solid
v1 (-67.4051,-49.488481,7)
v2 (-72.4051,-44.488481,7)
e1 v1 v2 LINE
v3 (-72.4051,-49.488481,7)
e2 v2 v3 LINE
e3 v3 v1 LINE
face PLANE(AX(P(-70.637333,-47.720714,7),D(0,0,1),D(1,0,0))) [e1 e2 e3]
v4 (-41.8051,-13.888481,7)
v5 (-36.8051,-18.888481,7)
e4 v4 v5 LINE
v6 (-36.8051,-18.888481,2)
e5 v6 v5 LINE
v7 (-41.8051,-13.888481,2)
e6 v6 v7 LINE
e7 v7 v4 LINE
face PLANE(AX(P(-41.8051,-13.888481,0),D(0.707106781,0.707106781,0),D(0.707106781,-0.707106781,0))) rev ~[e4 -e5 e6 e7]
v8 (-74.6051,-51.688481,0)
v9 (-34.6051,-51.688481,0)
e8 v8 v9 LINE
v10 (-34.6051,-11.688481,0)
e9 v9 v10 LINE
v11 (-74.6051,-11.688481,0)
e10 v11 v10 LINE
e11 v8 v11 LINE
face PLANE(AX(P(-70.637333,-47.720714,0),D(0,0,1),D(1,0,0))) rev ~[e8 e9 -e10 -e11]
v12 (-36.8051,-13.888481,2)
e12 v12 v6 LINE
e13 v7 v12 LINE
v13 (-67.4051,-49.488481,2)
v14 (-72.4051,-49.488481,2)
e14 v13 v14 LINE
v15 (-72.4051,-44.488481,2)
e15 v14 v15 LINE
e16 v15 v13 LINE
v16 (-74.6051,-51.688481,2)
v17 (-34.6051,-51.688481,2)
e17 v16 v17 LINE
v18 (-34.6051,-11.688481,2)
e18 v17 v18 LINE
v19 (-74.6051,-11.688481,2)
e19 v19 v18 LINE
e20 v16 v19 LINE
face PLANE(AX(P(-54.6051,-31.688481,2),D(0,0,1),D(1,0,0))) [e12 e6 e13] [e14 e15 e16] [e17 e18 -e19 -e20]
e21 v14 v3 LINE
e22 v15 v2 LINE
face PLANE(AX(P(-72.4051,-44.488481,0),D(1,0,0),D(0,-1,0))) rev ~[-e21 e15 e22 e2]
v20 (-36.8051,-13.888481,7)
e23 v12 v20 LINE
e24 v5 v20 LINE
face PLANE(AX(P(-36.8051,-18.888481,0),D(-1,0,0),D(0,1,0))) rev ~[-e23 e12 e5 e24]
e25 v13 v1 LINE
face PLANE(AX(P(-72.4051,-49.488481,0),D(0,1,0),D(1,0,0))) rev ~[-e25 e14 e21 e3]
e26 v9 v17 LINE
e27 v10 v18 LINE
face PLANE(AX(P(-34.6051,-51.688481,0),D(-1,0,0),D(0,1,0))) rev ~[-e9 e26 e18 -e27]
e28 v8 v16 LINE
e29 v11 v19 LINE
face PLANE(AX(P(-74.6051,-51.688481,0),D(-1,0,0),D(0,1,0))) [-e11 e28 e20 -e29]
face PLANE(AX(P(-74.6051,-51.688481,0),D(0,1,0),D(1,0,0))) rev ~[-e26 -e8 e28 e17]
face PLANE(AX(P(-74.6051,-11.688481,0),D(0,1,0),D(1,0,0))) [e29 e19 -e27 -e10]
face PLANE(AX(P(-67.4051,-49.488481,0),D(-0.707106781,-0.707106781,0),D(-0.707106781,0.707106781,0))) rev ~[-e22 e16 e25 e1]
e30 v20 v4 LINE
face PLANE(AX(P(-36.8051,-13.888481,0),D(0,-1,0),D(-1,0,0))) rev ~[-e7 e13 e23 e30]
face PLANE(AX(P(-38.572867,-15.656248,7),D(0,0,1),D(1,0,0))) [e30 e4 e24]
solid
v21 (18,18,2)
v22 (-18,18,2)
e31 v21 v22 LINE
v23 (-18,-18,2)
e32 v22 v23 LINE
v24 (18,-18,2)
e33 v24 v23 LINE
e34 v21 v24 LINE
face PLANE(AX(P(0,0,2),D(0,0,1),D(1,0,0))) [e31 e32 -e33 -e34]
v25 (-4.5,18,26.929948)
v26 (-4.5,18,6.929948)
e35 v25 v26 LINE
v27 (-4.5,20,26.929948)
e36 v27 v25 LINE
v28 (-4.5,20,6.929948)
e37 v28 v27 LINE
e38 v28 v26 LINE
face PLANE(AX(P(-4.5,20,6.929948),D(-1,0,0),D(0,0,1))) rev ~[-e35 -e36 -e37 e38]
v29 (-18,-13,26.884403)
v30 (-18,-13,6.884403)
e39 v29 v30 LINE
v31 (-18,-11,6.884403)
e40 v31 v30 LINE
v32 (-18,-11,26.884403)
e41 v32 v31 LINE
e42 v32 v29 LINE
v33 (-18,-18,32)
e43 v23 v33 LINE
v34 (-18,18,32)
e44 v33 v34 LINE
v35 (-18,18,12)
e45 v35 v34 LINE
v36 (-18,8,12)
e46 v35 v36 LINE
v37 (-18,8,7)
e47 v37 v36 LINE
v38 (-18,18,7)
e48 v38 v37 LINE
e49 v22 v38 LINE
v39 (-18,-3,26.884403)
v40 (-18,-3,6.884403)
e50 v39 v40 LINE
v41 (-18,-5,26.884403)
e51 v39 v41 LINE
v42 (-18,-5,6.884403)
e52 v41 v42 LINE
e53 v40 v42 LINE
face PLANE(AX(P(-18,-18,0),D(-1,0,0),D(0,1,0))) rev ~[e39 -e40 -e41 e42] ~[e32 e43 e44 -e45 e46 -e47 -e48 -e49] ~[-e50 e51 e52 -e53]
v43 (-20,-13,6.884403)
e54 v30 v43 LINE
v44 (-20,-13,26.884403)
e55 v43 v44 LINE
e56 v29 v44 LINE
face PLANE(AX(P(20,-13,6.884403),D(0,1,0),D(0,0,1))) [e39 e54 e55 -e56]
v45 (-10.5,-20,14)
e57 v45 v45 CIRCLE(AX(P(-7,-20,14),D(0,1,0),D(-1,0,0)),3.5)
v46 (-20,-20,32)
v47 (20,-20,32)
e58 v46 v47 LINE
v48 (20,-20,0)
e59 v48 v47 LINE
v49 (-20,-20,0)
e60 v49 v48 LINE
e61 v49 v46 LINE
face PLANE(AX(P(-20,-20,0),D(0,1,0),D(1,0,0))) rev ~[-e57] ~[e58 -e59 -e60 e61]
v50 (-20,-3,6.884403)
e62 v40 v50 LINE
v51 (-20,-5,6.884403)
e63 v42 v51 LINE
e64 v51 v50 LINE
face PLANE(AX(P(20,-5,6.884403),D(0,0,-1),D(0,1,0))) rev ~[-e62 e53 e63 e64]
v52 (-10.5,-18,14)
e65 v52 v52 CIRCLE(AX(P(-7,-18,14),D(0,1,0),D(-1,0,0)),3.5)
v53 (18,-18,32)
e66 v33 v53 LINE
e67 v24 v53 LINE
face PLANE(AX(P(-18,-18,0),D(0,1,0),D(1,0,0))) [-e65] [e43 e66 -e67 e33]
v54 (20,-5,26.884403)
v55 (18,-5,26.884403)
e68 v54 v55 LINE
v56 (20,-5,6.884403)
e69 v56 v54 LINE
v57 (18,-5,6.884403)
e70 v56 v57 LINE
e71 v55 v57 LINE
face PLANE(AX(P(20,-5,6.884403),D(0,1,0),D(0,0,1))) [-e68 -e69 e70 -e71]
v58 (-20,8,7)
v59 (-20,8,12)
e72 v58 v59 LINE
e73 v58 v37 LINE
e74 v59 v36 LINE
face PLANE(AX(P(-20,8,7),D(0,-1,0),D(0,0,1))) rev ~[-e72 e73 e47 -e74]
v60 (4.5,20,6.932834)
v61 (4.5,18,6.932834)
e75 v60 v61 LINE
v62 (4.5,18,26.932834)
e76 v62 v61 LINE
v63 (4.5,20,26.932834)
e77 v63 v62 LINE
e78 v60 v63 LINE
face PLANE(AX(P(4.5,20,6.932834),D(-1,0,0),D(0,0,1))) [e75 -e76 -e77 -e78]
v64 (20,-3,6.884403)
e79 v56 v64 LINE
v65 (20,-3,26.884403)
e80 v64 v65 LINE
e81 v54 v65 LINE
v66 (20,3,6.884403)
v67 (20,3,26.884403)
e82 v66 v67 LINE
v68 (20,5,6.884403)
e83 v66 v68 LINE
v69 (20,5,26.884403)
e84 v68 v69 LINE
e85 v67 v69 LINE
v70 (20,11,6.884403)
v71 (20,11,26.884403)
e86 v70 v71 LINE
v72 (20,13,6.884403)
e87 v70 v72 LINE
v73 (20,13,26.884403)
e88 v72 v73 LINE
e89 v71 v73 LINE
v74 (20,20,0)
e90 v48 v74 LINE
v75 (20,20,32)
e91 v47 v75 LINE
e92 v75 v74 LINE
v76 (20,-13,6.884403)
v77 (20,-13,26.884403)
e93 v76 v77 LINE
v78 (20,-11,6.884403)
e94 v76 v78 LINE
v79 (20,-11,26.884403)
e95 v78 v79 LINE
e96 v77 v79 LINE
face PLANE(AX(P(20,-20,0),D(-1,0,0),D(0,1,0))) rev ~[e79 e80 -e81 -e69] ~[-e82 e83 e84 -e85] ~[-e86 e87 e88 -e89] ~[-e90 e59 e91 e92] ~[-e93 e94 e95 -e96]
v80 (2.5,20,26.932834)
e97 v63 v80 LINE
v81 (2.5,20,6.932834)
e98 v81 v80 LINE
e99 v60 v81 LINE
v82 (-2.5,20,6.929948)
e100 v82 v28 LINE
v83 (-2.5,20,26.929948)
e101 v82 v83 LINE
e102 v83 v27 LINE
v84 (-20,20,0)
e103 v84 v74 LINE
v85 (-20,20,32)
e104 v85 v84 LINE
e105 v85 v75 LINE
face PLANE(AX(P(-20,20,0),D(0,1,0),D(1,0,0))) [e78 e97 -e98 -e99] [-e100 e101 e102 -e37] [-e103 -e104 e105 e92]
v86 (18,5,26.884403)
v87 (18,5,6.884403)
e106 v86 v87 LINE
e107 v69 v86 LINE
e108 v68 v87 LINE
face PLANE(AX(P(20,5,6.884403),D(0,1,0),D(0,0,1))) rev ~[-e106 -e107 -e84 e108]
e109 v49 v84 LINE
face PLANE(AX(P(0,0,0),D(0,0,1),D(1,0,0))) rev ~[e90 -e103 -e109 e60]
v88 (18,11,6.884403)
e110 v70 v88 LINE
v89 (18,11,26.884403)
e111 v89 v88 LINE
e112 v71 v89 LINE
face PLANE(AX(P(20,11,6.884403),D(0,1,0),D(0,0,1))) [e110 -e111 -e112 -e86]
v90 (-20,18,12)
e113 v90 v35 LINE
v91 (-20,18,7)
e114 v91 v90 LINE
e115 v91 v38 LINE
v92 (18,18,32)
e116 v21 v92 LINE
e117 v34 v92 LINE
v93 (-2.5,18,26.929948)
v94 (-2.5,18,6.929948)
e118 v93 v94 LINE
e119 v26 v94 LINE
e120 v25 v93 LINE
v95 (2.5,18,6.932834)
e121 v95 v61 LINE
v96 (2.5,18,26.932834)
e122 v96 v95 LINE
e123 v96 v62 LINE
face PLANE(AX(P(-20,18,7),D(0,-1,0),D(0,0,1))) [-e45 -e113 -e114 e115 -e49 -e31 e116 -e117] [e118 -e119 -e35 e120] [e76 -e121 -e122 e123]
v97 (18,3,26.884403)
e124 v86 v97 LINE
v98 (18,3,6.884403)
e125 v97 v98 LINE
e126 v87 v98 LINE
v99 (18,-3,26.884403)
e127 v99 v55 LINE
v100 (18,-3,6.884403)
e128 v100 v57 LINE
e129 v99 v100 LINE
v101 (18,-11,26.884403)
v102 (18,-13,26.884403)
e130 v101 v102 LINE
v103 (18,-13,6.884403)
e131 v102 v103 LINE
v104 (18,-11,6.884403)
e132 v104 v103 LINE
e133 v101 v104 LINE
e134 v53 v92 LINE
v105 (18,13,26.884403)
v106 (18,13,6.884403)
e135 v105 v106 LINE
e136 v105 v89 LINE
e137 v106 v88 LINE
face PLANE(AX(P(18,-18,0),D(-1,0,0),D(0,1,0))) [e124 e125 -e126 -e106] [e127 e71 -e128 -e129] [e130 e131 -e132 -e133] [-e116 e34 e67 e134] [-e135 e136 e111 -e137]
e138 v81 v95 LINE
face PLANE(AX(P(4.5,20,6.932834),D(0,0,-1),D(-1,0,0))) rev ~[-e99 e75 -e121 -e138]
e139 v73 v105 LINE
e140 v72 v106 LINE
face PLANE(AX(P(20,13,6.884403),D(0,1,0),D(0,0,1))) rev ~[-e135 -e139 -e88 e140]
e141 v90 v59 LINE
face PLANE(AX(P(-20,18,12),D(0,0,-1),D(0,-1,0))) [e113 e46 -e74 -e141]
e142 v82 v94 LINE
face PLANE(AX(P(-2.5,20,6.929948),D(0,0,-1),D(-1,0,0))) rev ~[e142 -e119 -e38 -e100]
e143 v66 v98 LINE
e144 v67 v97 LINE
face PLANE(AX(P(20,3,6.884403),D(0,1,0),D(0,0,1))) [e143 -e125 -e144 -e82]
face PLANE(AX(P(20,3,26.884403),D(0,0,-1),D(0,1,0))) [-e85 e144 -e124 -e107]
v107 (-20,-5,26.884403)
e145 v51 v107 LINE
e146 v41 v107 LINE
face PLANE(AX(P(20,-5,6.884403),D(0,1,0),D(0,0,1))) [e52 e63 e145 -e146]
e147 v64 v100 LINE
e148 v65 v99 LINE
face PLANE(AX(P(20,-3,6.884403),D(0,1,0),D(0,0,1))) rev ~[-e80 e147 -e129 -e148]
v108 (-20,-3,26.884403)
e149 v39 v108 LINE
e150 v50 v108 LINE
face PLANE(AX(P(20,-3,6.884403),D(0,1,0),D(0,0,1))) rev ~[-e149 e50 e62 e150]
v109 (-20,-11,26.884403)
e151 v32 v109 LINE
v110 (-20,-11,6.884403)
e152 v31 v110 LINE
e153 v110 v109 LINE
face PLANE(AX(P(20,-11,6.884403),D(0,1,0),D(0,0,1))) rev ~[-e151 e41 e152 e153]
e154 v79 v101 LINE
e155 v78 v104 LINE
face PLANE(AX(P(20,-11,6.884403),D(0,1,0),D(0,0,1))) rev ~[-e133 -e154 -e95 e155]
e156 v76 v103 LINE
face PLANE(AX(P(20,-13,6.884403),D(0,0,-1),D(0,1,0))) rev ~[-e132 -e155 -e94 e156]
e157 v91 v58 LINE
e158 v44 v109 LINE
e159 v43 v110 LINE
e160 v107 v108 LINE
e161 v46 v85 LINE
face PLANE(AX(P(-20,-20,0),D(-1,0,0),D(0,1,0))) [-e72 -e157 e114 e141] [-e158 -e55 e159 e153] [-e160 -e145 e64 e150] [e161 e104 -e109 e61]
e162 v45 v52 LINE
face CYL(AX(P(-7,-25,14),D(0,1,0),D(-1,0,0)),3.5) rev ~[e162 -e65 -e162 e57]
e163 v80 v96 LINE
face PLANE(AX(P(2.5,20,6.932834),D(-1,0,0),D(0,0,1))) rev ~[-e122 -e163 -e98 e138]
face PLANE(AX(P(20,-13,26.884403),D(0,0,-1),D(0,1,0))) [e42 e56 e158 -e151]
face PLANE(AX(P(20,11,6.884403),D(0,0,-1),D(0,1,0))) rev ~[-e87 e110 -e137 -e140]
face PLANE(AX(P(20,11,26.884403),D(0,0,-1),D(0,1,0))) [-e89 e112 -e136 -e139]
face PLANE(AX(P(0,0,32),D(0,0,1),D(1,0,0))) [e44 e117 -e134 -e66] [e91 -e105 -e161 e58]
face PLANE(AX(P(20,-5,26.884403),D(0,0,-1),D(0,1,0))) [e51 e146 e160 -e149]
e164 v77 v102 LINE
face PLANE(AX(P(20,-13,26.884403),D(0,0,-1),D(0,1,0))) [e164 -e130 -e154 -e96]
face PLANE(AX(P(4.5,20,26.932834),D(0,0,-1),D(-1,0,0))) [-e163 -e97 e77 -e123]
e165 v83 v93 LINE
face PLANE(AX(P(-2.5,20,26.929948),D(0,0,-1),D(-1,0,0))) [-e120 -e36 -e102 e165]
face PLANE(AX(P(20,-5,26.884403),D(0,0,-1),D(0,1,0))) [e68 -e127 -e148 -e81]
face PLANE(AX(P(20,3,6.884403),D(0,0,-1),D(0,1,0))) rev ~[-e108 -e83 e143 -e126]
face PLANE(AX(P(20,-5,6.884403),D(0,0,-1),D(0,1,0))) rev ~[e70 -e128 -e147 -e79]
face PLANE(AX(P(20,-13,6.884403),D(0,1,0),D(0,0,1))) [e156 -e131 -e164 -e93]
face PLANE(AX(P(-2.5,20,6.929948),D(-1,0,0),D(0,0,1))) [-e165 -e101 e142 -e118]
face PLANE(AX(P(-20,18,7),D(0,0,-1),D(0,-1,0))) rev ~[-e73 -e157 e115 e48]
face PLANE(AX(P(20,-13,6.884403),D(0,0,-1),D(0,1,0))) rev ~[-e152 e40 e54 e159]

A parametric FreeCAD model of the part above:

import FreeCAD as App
import Part
import Sketcher
Q = App.Units.Quantity


def add_polygon(sketch, points):
    """Adds a closed chain of lines whose ends are joined by coincident constraints."""
    first, n = sketch.GeometryCount, len(points)
    for a, b in zip(points, points[1:] + points[:1]):
        sketch.addGeometry(Part.LineSegment(App.Vector(*a, 0), App.Vector(*b, 0)), False)
    for i in range(n):
        sketch.addConstraint(Sketcher.Constraint("Coincident", first + i, 2, first + (i + 1) % n, 1))

doc = App.newDocument("Part")
body = doc.addObject("PartDesign::Body", "Body")

sketch1 = doc.addObject("Sketcher::SketchObject", "Sketch")
body.addObject(sketch1)
sketch1.AttachmentSupport = (doc.XY_Plane, [""])
sketch1.MapMode = "FlatFace"
add_polygon(sketch1, [(-20, 20), (-20, -20), (20, -20), (20, 20)])
sketch1.addConstraint([
    Sketcher.Constraint("Vertical", 0),
    Sketcher.Constraint("Horizontal", 1),
    Sketcher.Constraint("Vertical", 2),
    Sketcher.Constraint("Horizontal", 3),
    Sketcher.Constraint("Symmetric", 0, 2, 2, 2, -1, 1),
    Sketcher.Constraint("Equal", 3, 0),
    Sketcher.Constraint("DistanceX", 1, 1, 1, 2, Q("40 mm")),
])
pad1 = doc.addObject("PartDesign::Pad", "Pad")
body.addObject(pad1)
pad1.Profile = sketch1
pad1.Length = 2

sketch2 = doc.addObject("Sketcher::SketchObject", "Sketch001")
body.addObject(sketch2)
sketch2.AttachmentSupport = (doc.XY_Plane, [""])
sketch2.MapMode = "FlatFace"
add_polygon(sketch2, [(-20, 20), (-20, -20), (20, -20), (20, 20)])
add_polygon(sketch2, [(18, -18), (-18, -18), (-18, 18), (18, 18)])
sketch2.addConstraint([
    Sketcher.Constraint("Vertical", 0),
    Sketcher.Constraint("Horizontal", 1),
    Sketcher.Constraint("Vertical", 2),
    Sketcher.Constraint("Horizontal", 3),
    Sketcher.Constraint("Horizontal", 4),
    Sketcher.Constraint("Vertical", 5),
    Sketcher.Constraint("Horizontal", 6),
    Sketcher.Constraint("Vertical", 7),
    Sketcher.Constraint("Symmetric", 0, 2, 2, 2, -1, 1),
    Sketcher.Constraint("Symmetric", 4, 2, 6, 2, -1, 1),
    Sketcher.Constraint("Equal", 3, 0),
    Sketcher.Constraint("Equal", 6, 5),
    Sketcher.Constraint("DistanceX", 1, 1, 1, 2, Q("40 mm")),
    Sketcher.Constraint("DistanceX", 4, 2, 4, 1, Q("36 mm")),
])
pad2 = doc.addObject("PartDesign::Pad", "Pad001")
body.addObject(pad2)
pad2.Profile = sketch2
pad2.Length = 32

sketch3 = doc.addObject("Sketcher::SketchObject", "Sketch002")
body.addObject(sketch3)
sketch3.AttachmentSupport = (doc.YZ_Plane, [""])
sketch3.MapMode = "FlatFace"
sketch3.AttachmentOffset = App.Placement(App.Vector(0, 0, -20), App.Rotation())
add_polygon(sketch3, [(18, 12), (18, 7), (8, 7), (8, 12)])
sketch3.addConstraint([
    Sketcher.Constraint("Vertical", 0),
    Sketcher.Constraint("Horizontal", 1),
    Sketcher.Constraint("Vertical", 2),
    Sketcher.Constraint("Horizontal", 3),
    Sketcher.Constraint("DistanceX", 1, 2, 1, 1, Q("10 mm")),
    Sketcher.Constraint("DistanceY", 0, 2, 0, 1, Q("5 mm")),
    Sketcher.Constraint("DistanceX", -1, 1, 0, 2, Q("18 mm")),
    Sketcher.Constraint("DistanceY", -1, 1, 0, 2, Q("7 mm")),
])
pocket1 = doc.addObject("PartDesign::Pocket", "Pocket")
body.addObject(pocket1)
pocket1.Profile = sketch3
pocket1.Length = 2
pocket1.Reversed = True

sketch4 = doc.addObject("Sketcher::SketchObject", "Sketch003")
body.addObject(sketch4)
sketch4.AttachmentSupport = (doc.XZ_Plane, [""])
sketch4.MapMode = "FlatFace"
sketch4.AttachmentOffset = App.Placement(App.Vector(0, 0, 20), App.Rotation())
sketch4.addGeometry(Part.Circle(App.Vector(-7, 14, 0), App.Vector(0, 0, 1), 3.5), False)
sketch4.addConstraint([
    Sketcher.Constraint("Diameter", 0, Q("7 mm")),
    Sketcher.Constraint("DistanceX", 0, 3, -1, 1, Q("7 mm")),
    Sketcher.Constraint("DistanceY", -1, 1, 0, 3, Q("14 mm")),
])
doc.recompute()
hole = doc.addObject("PartDesign::Hole", "Hole")
body.addObject(hole)
hole.Profile = sketch4
hole.ThreadType = "None"
hole.Diameter = 7
hole.DepthType = "Dimension"
hole.Depth = 5
hole.DrillPoint = "Angled"
hole.DrillPointAngle = 118

sketch5 = doc.addObject("Sketcher::SketchObject", "Sketch004")
body.addObject(sketch5)
sketch5.AttachmentSupport = (doc.YZ_Plane, [""])
sketch5.MapMode = "FlatFace"
sketch5.AttachmentOffset = App.Placement(App.Vector(0, 0, 20), App.Rotation())
add_polygon(sketch5, [(-13, 26.884403), (-13, 6.884403), (-11, 6.884403), (-11, 26.884403)])
add_polygon(sketch5, [(-5, 26.884403), (-5, 6.884403), (-3, 6.884403), (-3, 26.884403)])
sketch5.addConstraint([
    Sketcher.Constraint("Vertical", 0),
    Sketcher.Constraint("Horizontal", 1),
    Sketcher.Constraint("Vertical", 2),
    Sketcher.Constraint("Horizontal", 3),
    Sketcher.Constraint("Vertical", 4),
    Sketcher.Constraint("Horizontal", 5),
    Sketcher.Constraint("Vertical", 6),
    Sketcher.Constraint("Horizontal", 7),
    Sketcher.Constraint("Horizontal", 1, 2, 4, 2),
    Sketcher.Constraint("Horizontal", 3, 2, 6, 2),
    Sketcher.Constraint("Equal", 3, 5),
    Sketcher.Constraint("DistanceX", 1, 1, 1, 2, Q("2 mm")),
    Sketcher.Constraint("DistanceY", 0, 2, 0, 1, Q("20 mm")),
    Sketcher.Constraint("DistanceX", 0, 2, -1, 1, Q("13 mm")),
    Sketcher.Constraint("DistanceX", 4, 2, -1, 1, Q("5 mm")),
    Sketcher.Constraint("DistanceY", -1, 1, 0, 2, Q("6.884403 mm")),
])
pocket2 = doc.addObject("PartDesign::Pocket", "Pocket001")
body.addObject(pocket2)
pocket2.Profile = sketch5
pocket2.Length = 40

sketch6 = doc.addObject("Sketcher::SketchObject", "Sketch005")
body.addObject(sketch6)
sketch6.AttachmentSupport = (doc.YZ_Plane, [""])
sketch6.MapMode = "FlatFace"
sketch6.AttachmentOffset = App.Placement(App.Vector(0, 0, 20), App.Rotation())
add_polygon(sketch6, [(3, 26.884403), (3, 6.884403), (5, 6.884403), (5, 26.884403)])
add_polygon(sketch6, [(11, 26.884403), (11, 6.884403), (13, 6.884403), (13, 26.884403)])
sketch6.addConstraint([
    Sketcher.Constraint("Vertical", 0),
    Sketcher.Constraint("Horizontal", 1),
    Sketcher.Constraint("Vertical", 2),
    Sketcher.Constraint("Horizontal", 3),
    Sketcher.Constraint("Vertical", 4),
    Sketcher.Constraint("Horizontal", 5),
    Sketcher.Constraint("Vertical", 6),
    Sketcher.Constraint("Horizontal", 7),
    Sketcher.Constraint("Horizontal", 1, 2, 4, 2),
    Sketcher.Constraint("Horizontal", 3, 2, 6, 2),
    Sketcher.Constraint("Equal", 3, 5),
    Sketcher.Constraint("DistanceX", 1, 1, 1, 2, Q("2 mm")),
    Sketcher.Constraint("DistanceY", 0, 2, 0, 1, Q("20 mm")),
    Sketcher.Constraint("DistanceX", -1, 1, 0, 2, Q("3 mm")),
    Sketcher.Constraint("DistanceX", -1, 1, 4, 2, Q("11 mm")),
    Sketcher.Constraint("DistanceY", -1, 1, 0, 2, Q("6.884403 mm")),
])
pocket3 = doc.addObject("PartDesign::Pocket", "Pocket002")
body.addObject(pocket3)
pocket3.Profile = sketch6
pocket3.Length = 25

sketch7 = doc.addObject("Sketcher::SketchObject", "Sketch006")
body.addObject(sketch7)
sketch7.AttachmentSupport = (doc.XZ_Plane, [""])
sketch7.MapMode = "FlatFace"
sketch7.AttachmentOffset = App.Placement(App.Vector(0, 0, -20), App.Rotation())
add_polygon(sketch7, [(4.5, 26.932834), (4.5, 6.932834), (2.5, 6.932834), (2.5, 26.932834)])
add_polygon(sketch7, [(-2.5, 26.929948), (-2.5, 6.929948), (-4.5, 6.929948), (-4.5, 26.929948)])
sketch7.addConstraint([
    Sketcher.Constraint("Vertical", 0),
    Sketcher.Constraint("Horizontal", 1),
    Sketcher.Constraint("Vertical", 2),
    Sketcher.Constraint("Horizontal", 3),
    Sketcher.Constraint("Vertical", 4),
    Sketcher.Constraint("Horizontal", 5),
    Sketcher.Constraint("Vertical", 6),
    Sketcher.Constraint("Horizontal", 7),
    Sketcher.Constraint("Equal", 3, 5),
    Sketcher.Constraint("Equal", 2, 4),
    Sketcher.Constraint("DistanceX", 1, 2, 1, 1, Q("2 mm")),
    Sketcher.Constraint("DistanceY", 0, 2, 0, 1, Q("20 mm")),
    Sketcher.Constraint("DistanceX", 4, 2, 1, 2, Q("5 mm")),
    Sketcher.Constraint("DistanceX", -1, 1, 0, 2, Q("4.5 mm")),
    Sketcher.Constraint("DistanceY", -1, 1, 0, 2, Q("6.932834 mm")),
    Sketcher.Constraint("DistanceY", -1, 1, 4, 2, Q("6.929948 mm")),
])
pocket4 = doc.addObject("PartDesign::Pocket", "Pocket003")
body.addObject(pocket4)
pocket4.Profile = sketch7
pocket4.Length = 25
pocket4.Reversed = True
body2 = doc.addObject("PartDesign::Body", "Body001")

sketch8 = doc.addObject("Sketcher::SketchObject", "Sketch007")
body2.addObject(sketch8)
sketch8.AttachmentSupport = (doc.getObject("XY_Plane001"), [""])
sketch8.MapMode = "FlatFace"
add_polygon(sketch8, [(-74.6051, -11.688481), (-74.6051, -51.688481), (-34.6051, -51.688481), (-34.6051, -11.688481)])
sketch8.addConstraint([
    Sketcher.Constraint("Vertical", 0),
    Sketcher.Constraint("Horizontal", 1),
    Sketcher.Constraint("Vertical", 2),
    Sketcher.Constraint("Horizontal", 3),
    Sketcher.Constraint("Equal", 3, 0),
    Sketcher.Constraint("DistanceX", 1, 1, 1, 2, Q("40 mm")),
    Sketcher.Constraint("DistanceX", 0, 2, -1, 1, Q("74.6051 mm")),
    Sketcher.Constraint("DistanceY", 0, 2, -1, 1, Q("51.688481 mm")),
])
pad3 = doc.addObject("PartDesign::Pad", "Pad002")
body2.addObject(pad3)
pad3.Profile = sketch8
pad3.Length = 2

sketch9 = doc.addObject("Sketcher::SketchObject", "Sketch008")
body2.addObject(sketch9)
sketch9.AttachmentSupport = (doc.getObject("XY_Plane001"), [""])
sketch9.MapMode = "FlatFace"
add_polygon(sketch9, [(-72.4051, -49.488481), (-67.4051, -49.488481), (-72.4051, -44.488481)])
add_polygon(sketch9, [(-36.8051, -18.888481), (-36.8051, -13.888481), (-41.8051, -13.888481)])
sketch9.addConstraint([
    Sketcher.Constraint("Horizontal", 0),
    Sketcher.Constraint("Vertical", 2),
    Sketcher.Constraint("Vertical", 3),
    Sketcher.Constraint("Horizontal", 4),
    Sketcher.Constraint("Parallel", 1, 5),
    Sketcher.Constraint("Equal", 0, 4),
    Sketcher.Constraint("Equal", 4, 2),
    Sketcher.Constraint("DistanceX", 0, 1, 0, 2, Q("5 mm")),
    Sketcher.Constraint("DistanceX", 0, 2, 3, 2, Q("30.6 mm")),
    Sketcher.Constraint("DistanceY", 0, 2, 3, 2, Q("35.6 mm")),
    Sketcher.Constraint("DistanceX", 0, 2, -1, 1, Q("67.4051 mm")),
    Sketcher.Constraint("DistanceY", 0, 2, -1, 1, Q("49.488481 mm")),
])
pad4 = doc.addObject("PartDesign::Pad", "Pad003")
body2.addObject(pad4)
pad4.Profile = sketch9
pad4.Length = 7

doc.recompute()
